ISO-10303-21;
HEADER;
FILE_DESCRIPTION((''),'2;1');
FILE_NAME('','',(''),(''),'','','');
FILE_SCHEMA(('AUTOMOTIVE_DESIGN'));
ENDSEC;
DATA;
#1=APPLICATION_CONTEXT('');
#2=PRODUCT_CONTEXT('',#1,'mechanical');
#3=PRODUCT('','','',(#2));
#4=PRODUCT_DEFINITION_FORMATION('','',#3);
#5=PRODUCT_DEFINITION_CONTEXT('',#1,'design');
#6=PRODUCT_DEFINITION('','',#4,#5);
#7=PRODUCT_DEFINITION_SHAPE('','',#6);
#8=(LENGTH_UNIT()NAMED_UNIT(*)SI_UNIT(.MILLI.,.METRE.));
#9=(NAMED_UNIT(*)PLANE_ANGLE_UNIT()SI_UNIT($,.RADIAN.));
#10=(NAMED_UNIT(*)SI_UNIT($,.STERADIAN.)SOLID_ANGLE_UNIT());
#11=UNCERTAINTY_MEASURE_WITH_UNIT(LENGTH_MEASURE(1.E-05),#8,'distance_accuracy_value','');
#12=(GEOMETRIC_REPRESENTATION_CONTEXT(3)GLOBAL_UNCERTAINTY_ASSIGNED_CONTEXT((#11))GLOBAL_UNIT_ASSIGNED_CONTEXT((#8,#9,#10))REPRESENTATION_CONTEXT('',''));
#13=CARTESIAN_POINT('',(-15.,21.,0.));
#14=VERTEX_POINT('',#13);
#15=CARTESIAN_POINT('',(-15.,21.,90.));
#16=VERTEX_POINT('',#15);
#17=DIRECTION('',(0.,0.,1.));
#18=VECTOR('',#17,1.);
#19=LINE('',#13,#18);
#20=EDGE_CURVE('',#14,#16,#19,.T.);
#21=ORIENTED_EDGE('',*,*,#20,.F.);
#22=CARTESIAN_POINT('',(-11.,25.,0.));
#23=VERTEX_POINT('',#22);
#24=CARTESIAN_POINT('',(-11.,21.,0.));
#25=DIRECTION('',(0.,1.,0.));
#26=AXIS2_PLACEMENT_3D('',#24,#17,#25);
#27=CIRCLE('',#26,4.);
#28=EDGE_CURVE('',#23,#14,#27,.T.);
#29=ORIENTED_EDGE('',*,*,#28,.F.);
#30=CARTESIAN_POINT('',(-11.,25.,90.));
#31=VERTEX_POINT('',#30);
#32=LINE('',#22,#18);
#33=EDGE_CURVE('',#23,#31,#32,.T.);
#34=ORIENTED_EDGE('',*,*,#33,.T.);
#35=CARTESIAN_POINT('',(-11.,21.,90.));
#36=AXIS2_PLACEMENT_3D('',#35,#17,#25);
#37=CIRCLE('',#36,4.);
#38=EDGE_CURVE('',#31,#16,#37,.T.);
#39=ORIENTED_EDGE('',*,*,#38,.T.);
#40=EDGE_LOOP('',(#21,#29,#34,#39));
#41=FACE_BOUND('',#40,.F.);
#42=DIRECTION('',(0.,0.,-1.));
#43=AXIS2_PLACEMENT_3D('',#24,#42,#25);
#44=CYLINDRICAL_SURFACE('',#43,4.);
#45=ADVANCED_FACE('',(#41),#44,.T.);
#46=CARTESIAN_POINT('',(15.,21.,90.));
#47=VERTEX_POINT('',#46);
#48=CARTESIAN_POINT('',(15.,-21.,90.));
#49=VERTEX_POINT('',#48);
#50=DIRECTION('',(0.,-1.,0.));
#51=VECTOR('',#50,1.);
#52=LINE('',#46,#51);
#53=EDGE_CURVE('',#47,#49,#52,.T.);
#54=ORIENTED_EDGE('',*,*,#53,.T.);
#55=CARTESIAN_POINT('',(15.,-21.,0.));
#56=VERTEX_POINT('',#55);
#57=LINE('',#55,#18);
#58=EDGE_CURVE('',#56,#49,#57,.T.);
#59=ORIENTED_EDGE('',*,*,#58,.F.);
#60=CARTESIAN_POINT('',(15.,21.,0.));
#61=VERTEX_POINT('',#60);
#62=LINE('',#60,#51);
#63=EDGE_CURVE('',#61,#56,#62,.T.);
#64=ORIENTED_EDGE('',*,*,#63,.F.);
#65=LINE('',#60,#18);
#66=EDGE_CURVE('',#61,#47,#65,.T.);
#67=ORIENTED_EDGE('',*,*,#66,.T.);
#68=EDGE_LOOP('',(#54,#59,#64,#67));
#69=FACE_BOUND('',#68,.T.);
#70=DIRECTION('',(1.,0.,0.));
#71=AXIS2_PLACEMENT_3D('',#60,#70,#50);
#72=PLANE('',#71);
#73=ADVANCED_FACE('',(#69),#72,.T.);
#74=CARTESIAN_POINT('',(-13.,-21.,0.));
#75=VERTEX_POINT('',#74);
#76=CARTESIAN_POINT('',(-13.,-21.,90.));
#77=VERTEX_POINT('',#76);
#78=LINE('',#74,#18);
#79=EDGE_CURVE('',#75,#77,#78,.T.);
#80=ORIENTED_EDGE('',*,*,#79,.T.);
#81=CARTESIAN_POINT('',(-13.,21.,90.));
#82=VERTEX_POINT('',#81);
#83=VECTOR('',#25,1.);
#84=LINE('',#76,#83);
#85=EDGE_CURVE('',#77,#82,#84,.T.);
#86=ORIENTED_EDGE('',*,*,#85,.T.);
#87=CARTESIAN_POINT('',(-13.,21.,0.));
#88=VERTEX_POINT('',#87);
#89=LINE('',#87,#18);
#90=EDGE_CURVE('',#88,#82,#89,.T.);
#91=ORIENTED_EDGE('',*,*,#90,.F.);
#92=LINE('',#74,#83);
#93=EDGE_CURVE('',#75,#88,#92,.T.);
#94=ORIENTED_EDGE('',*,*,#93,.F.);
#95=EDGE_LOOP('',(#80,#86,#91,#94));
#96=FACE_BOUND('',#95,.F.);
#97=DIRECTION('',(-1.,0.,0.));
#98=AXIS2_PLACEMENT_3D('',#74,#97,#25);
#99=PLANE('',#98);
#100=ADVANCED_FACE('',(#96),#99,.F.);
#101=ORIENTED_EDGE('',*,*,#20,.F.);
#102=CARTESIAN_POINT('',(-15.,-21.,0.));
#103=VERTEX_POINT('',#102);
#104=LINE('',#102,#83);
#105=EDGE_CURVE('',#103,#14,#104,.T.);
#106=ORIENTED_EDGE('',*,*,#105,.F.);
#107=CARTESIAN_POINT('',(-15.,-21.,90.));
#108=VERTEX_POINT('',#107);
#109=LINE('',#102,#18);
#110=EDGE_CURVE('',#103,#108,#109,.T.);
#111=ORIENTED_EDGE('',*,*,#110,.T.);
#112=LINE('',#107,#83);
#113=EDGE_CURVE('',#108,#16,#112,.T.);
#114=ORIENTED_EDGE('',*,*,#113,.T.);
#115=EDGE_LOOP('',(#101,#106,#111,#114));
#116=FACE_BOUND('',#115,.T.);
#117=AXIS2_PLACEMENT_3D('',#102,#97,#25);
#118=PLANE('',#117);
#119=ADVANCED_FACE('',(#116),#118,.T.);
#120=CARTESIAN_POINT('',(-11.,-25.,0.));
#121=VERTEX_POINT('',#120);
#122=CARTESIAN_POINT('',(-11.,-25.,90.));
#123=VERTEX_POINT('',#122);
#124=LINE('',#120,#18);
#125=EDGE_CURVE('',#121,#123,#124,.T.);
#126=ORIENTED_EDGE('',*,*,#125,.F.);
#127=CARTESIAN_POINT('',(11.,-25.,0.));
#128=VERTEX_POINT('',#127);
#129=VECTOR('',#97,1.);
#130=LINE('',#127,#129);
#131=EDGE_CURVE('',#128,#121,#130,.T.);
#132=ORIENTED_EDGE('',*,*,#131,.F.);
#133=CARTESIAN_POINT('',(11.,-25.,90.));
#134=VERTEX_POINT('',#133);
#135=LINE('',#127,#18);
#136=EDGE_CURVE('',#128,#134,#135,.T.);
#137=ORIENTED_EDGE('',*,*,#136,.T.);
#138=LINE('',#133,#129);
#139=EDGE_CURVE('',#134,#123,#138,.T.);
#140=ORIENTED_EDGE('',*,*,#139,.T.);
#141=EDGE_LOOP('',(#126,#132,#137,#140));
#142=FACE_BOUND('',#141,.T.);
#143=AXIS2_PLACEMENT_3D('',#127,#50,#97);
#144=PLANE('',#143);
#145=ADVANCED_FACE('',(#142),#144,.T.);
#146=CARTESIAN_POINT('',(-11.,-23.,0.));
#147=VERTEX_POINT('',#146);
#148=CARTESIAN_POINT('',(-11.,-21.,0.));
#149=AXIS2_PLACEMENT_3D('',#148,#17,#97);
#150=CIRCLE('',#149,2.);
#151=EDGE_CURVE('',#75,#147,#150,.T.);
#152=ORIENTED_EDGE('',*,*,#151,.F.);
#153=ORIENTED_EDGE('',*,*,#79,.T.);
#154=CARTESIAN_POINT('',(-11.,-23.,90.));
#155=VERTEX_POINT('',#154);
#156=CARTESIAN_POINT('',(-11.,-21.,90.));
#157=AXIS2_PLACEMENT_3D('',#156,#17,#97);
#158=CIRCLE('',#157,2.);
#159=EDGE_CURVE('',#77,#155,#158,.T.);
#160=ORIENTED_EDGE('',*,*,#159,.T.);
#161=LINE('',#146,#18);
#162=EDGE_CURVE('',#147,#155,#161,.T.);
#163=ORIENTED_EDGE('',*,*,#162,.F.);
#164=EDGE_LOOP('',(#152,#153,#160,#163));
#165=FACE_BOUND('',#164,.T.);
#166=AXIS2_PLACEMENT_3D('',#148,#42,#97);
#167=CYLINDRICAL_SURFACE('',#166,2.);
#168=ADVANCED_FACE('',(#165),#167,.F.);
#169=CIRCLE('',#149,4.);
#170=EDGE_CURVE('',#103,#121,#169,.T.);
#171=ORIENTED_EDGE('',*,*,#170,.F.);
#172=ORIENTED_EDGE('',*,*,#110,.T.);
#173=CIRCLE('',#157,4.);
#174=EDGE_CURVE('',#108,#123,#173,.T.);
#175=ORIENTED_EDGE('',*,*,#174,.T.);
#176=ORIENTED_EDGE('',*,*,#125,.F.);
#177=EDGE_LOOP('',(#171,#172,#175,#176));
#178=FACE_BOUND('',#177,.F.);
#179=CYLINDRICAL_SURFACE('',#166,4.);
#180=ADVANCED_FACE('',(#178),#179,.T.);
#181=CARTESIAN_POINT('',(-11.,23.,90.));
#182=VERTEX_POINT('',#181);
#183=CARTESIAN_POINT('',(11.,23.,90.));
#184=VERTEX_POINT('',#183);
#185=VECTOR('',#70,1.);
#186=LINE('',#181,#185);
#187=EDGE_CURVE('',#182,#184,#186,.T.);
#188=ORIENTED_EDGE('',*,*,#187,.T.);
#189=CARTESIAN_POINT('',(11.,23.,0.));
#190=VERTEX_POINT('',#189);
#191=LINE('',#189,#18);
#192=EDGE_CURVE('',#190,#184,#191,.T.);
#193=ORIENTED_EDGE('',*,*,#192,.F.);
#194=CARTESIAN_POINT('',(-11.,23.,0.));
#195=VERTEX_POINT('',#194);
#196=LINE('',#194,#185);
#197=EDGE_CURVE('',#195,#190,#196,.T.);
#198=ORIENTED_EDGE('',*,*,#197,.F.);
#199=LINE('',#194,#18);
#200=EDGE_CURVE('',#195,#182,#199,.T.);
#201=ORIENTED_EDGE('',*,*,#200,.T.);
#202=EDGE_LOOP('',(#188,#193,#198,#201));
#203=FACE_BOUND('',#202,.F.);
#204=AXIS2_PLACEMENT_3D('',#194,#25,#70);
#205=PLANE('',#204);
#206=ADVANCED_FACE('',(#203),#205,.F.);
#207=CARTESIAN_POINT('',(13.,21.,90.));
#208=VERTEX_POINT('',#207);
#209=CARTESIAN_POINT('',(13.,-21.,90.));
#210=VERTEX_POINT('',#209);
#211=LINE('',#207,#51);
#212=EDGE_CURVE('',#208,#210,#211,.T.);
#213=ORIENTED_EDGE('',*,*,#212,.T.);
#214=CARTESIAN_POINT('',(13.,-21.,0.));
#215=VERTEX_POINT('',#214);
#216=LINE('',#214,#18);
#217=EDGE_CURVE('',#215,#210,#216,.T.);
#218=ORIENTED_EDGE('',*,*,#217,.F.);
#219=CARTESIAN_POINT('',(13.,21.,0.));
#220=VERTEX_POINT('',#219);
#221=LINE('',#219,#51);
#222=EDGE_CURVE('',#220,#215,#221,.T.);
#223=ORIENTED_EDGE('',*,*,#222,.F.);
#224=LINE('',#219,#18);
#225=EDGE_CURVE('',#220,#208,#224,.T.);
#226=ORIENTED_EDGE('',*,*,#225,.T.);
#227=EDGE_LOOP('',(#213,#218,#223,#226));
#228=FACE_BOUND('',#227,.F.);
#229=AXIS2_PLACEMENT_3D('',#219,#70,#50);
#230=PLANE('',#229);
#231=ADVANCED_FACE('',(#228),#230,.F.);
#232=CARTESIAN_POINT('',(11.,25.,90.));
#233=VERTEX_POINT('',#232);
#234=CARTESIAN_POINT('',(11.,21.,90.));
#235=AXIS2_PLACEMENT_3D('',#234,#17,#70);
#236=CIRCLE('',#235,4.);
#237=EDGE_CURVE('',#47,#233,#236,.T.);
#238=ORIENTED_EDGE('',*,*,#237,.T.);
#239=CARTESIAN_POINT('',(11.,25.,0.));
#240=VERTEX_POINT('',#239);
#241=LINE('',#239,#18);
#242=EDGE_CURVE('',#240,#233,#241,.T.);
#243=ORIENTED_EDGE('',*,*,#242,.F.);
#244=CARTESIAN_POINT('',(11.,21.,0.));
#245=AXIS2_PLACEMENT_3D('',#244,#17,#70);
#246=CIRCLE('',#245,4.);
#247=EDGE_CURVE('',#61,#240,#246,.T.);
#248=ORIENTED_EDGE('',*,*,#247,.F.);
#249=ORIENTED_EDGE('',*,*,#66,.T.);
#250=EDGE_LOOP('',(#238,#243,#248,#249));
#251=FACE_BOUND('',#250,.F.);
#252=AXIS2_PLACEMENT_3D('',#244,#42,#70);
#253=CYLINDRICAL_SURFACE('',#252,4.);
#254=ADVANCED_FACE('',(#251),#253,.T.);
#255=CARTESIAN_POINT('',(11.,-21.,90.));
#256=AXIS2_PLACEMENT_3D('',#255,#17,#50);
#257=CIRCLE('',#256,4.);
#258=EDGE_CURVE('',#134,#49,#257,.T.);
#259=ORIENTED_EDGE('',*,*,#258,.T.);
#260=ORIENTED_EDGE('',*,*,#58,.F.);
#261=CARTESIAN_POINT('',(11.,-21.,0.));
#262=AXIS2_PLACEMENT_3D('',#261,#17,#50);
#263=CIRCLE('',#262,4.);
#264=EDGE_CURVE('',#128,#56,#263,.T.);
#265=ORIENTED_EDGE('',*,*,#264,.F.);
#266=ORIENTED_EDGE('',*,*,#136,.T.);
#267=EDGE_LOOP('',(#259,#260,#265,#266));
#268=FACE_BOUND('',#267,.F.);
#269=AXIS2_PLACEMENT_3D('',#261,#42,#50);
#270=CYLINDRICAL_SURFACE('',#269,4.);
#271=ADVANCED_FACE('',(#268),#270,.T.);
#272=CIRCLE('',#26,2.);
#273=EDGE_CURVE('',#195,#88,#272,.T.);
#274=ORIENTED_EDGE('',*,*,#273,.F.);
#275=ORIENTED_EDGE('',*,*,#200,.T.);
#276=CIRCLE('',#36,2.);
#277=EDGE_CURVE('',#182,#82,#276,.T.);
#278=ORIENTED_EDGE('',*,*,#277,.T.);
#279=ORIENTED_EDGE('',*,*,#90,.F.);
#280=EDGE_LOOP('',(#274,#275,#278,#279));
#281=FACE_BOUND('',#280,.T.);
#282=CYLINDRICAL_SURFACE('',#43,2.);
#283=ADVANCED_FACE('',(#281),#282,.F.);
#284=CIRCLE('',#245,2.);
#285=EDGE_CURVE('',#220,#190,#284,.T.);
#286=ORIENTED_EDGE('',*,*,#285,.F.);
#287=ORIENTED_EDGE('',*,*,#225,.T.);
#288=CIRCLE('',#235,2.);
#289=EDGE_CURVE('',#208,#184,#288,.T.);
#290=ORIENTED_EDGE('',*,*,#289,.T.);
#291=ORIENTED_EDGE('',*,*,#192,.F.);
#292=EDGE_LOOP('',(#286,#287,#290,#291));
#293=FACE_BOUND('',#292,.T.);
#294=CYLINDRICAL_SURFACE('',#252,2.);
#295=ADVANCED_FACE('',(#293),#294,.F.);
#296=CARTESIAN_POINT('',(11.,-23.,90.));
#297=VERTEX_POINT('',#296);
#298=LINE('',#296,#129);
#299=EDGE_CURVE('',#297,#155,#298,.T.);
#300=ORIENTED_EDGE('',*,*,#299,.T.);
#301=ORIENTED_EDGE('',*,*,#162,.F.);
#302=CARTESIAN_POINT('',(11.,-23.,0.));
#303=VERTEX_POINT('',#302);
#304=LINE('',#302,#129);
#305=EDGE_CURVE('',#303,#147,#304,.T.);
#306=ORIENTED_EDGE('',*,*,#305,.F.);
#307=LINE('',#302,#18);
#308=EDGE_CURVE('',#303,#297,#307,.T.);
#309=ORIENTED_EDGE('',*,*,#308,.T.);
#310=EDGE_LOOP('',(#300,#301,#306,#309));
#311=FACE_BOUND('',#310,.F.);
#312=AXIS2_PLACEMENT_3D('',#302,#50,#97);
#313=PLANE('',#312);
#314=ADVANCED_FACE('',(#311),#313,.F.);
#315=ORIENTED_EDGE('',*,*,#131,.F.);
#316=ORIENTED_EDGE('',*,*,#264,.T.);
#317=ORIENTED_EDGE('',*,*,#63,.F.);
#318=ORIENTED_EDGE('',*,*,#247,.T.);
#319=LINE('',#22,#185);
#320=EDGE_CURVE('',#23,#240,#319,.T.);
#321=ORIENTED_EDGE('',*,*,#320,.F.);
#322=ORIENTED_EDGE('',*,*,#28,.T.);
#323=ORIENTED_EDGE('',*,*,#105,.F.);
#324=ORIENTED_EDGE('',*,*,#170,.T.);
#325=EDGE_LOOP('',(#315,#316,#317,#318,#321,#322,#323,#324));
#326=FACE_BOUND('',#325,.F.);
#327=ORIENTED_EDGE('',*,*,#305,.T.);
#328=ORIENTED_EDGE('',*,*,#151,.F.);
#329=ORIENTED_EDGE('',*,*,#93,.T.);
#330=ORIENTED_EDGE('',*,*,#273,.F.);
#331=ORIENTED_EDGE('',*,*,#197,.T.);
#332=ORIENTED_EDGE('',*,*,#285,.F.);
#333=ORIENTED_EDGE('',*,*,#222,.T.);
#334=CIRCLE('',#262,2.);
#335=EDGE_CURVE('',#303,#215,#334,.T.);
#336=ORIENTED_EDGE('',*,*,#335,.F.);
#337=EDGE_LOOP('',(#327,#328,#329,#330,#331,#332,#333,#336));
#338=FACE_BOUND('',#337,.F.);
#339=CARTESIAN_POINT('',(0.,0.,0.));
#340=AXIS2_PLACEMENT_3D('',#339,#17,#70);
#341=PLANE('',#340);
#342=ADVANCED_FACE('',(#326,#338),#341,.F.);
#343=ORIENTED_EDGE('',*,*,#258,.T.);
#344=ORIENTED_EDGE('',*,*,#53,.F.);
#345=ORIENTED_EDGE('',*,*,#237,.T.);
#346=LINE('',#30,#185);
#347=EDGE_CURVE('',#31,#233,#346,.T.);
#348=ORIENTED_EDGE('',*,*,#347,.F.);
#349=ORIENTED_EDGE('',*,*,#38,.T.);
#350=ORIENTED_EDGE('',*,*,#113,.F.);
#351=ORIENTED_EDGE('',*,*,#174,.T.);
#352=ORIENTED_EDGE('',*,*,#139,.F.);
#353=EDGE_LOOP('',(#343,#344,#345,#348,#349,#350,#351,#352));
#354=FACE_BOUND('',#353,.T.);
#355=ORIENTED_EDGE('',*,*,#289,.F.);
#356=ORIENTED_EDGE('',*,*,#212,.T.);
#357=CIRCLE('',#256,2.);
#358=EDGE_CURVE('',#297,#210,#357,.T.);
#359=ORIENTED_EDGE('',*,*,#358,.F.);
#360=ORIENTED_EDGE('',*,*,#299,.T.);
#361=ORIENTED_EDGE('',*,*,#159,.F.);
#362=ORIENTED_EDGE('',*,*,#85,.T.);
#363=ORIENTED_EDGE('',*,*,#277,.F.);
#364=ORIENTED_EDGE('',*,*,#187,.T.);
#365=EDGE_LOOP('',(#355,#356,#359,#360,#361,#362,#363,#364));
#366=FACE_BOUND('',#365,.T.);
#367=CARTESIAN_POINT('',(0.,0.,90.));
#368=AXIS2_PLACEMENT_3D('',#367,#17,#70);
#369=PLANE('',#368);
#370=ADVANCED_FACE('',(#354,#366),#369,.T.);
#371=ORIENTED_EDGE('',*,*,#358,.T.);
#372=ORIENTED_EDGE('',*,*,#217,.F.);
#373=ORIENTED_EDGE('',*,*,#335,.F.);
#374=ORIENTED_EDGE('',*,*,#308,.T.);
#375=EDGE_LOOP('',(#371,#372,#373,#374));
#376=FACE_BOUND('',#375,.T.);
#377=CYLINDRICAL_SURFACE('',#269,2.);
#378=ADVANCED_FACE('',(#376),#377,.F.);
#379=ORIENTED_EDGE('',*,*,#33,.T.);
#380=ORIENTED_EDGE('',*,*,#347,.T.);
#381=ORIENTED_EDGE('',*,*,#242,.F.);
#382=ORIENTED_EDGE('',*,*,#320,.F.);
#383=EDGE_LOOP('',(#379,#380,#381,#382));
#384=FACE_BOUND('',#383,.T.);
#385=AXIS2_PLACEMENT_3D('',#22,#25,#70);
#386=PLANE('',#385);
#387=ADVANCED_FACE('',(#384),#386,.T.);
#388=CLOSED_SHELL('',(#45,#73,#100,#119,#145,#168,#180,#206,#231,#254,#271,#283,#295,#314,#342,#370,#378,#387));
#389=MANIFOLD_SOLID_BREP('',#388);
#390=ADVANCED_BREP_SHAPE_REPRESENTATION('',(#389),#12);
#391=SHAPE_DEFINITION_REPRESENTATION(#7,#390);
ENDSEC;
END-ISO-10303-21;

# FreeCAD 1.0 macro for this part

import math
import FreeCAD as App
import Part
import Sketcher
Q = App.Units.Quantity

doc = App.newDocument("Part")
params = doc.addObject("Spreadsheet::Sheet", "Params")
for row, (alias, value) in enumerate([
    ("sketch1_radius", "4 mm"),
    ("sketch1_radius2", "2 mm"),
    ("pad1_length", "90 mm"),
], start=1):
    params.set(f"A{row}", alias)
    params.set(f"B{row}", "=" + value)
    params.setAlias(f"B{row}", alias)

body = doc.addObject("PartDesign::Body", "Body")

sketch1 = doc.addObject("Sketcher::SketchObject", "Sketch")
body.addObject(sketch1)
sketch1.AttachmentSupport = (doc.XY_Plane, [""])
sketch1.MapMode = "FlatFace"
sketch1.addGeometry([
    Part.LineSegment(App.Vector(-15, 21, 0), App.Vector(-15, -21, 0)),
    Part.ArcOfCircle(Part.Circle(App.Vector(-11, -21, 0), App.Vector(0, 0, 1), 4), math.radians(180), math.radians(270)),
    Part.LineSegment(App.Vector(-11, -25, 0), App.Vector(11, -25, 0)),
    Part.ArcOfCircle(Part.Circle(App.Vector(11, -21, 0), App.Vector(0, 0, 1), 4), math.radians(-90), math.radians(0)),
    Part.LineSegment(App.Vector(15, -21, 0), App.Vector(15, 21, 0)),
    Part.ArcOfCircle(Part.Circle(App.Vector(11, 21, 0), App.Vector(0, 0, 1), 4), math.radians(0), math.radians(90)),
    Part.LineSegment(App.Vector(11, 25, 0), App.Vector(-11, 25, 0)),
    Part.ArcOfCircle(Part.Circle(App.Vector(-11, 21, 0), App.Vector(0, 0, 1), 4), math.radians(90), math.radians(180)),
    Part.ArcOfCircle(Part.Circle(App.Vector(-11, 21, 0), App.Vector(0, 0, 1), 2), math.radians(90), math.radians(180)),
    Part.LineSegment(App.Vector(-11, 23, 0), App.Vector(11, 23, 0)),
    Part.ArcOfCircle(Part.Circle(App.Vector(11, 21, 0), App.Vector(0, 0, 1), 2), math.radians(0), math.radians(90)),
    Part.LineSegment(App.Vector(13, 21, 0), App.Vector(13, -21, 0)),
    Part.ArcOfCircle(Part.Circle(App.Vector(11, -21, 0), App.Vector(0, 0, 1), 2), math.radians(-90), math.radians(0)),
    Part.LineSegment(App.Vector(11, -23, 0), App.Vector(-11, -23, 0)),
    Part.ArcOfCircle(Part.Circle(App.Vector(-11, -21, 0), App.Vector(0, 0, 1), 2), math.radians(180), math.radians(270)),
    Part.LineSegment(App.Vector(-13, -21, 0), App.Vector(-13, 21, 0)),
], False)
sketch1.addConstraint([
    Sketcher.Constraint("Tangent", 0, 2, 1, 1),
    Sketcher.Constraint("Tangent", 1, 2, 2, 1),
    Sketcher.Constraint("Tangent", 2, 2, 3, 1),
    Sketcher.Constraint("Tangent", 3, 2, 4, 1),
    Sketcher.Constraint("Tangent", 4, 2, 5, 1),
    Sketcher.Constraint("Tangent", 5, 2, 6, 1),
    Sketcher.Constraint("Tangent", 6, 2, 7, 1),
    Sketcher.Constraint("Tangent", 7, 2, 0, 1),
    Sketcher.Constraint("Tangent", 8, 1, 9, 1),
    Sketcher.Constraint("Tangent", 9, 2, 10, 2),
    Sketcher.Constraint("Tangent", 10, 1, 11, 1),
    Sketcher.Constraint("Tangent", 11, 2, 12, 2),
    Sketcher.Constraint("Tangent", 12, 1, 13, 1),
    Sketcher.Constraint("Tangent", 13, 2, 14, 2),
    Sketcher.Constraint("Tangent", 14, 1, 15, 1),
    Sketcher.Constraint("Tangent", 15, 2, 8, 2),
    Sketcher.Constraint("Vertical", 0),
    Sketcher.Constraint("Horizontal", 2),
    Sketcher.Constraint("Vertical", 4),
    Sketcher.Constraint("Horizontal", 6),
    Sketcher.Constraint("Horizontal", 9),
    Sketcher.Constraint("Vertical", 11),
    Sketcher.Constraint("Horizontal", 13),
    Sketcher.Constraint("Vertical", 15),
    Sketcher.Constraint("Coincident", 8, 3, 7, 3),
    Sketcher.Constraint("Coincident", 10, 3, 5, 3),
    Sketcher.Constraint("Coincident", 12, 3, 3, 3),
    Sketcher.Constraint("Equal", 1, 3),
    Sketcher.Constraint("Equal", 3, 5),
    Sketcher.Constraint("Equal", 5, 7),
    Sketcher.Constraint("Equal", 12, 14),
    Sketcher.Constraint("Symmetric", 1, 3, 5, 3, -1, 1),
    Sketcher.Constraint("Radius", 1, Q("4 mm")),
    Sketcher.Constraint("Radius", 8, Q("2 mm")),
    Sketcher.Constraint("DistanceX", 0, 2, -1, 1, Q("15 mm")),
    Sketcher.Constraint("DistanceY", 1, 2, -1, 1, Q("25 mm")),
])
sketch1.setExpression("Constraints[32]", "Params.sketch1_radius")
sketch1.setExpression("Constraints[33]", "Params.sketch1_radius2")
pad1 = doc.addObject("PartDesign::Pad", "Pad")
body.addObject(pad1)
pad1.Profile = sketch1
pad1.setExpression("Length", "Params.pad1_length")

doc.recompute()
